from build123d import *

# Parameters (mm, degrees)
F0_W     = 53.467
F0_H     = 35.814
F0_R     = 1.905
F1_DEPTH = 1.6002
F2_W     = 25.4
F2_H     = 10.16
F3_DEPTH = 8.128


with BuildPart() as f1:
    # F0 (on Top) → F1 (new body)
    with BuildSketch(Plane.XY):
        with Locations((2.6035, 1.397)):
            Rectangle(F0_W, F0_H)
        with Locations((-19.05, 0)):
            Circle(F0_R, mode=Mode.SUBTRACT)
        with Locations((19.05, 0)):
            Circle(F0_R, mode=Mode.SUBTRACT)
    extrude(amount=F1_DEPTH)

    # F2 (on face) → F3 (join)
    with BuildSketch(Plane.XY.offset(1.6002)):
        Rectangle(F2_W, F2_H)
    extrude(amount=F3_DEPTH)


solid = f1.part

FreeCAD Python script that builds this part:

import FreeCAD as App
import Part
import Sketcher
Q = App.Units.Quantity


def add_polygon(sketch, points):
    """Adds a closed chain of lines whose ends are joined by coincident constraints."""
    first, n = sketch.GeometryCount, len(points)
    for a, b in zip(points, points[1:] + points[:1]):
        sketch.addGeometry(Part.LineSegment(App.Vector(*a, 0), App.Vector(*b, 0)), False)
    for i in range(n):
        sketch.addConstraint(Sketcher.Constraint("Coincident", first + i, 2, first + (i + 1) % n, 1))

doc = App.newDocument("Part")
body = doc.addObject("PartDesign::Body", "Body")

sketch1 = body.newObject("Sketcher::SketchObject", "Sketch")
sketch1.AttachmentSupport = (doc.getObject("XY_Plane"), [""])
sketch1.MapMode = "FlatFace"
add_polygon(sketch1, [(-24.1, 19.3), (-24.1, -16.5), (29.3, -16.5), (29.3, 19.3)])
sketch1.addGeometry(Part.Circle(App.Vector(-19.1, 0, 0), App.Vector(0, 0, 1), 1.9), False)
sketch1.addGeometry(Part.Circle(App.Vector(19.1, 0, 0), App.Vector(0, 0, 1), 1.9), False)
sketch1.addConstraint([
    Sketcher.Constraint("Vertical", 0),
    Sketcher.Constraint("Horizontal", 1),
    Sketcher.Constraint("Vertical", 2),
    Sketcher.Constraint("Horizontal", 3),
    Sketcher.Constraint("Equal", 4, 5),
    Sketcher.Constraint("Symmetric", 4, 3, 5, 3, -1, 1),
    Sketcher.Constraint("PointOnObject", 4, 3, -1),
    Sketcher.Constraint("Diameter", 4, Q("0.15 in")),
    Sketcher.Constraint("DistanceY", 0, 2, 0, 1, Q("1.41 in")),
    Sketcher.Constraint("DistanceX", 4, 3, 5, 3, Q("1.5 in")),
    Sketcher.Constraint("DistanceX", 0, 2, 4, 3, Q("0.2 in")),
    Sketcher.Constraint("DistanceX", 1, 1, 1, 2, Q("2.105 in")),
    Sketcher.Constraint("DistanceY", 0, 2, -1, 1, Q("0.65 in")),
])
pad1 = body.newObject("PartDesign::Pad", "Pad")
pad1.Profile = sketch1
pad1.Length = Q("0.063 in")

sketch2 = body.newObject("Sketcher::SketchObject", "Sketch001")
sketch2.AttachmentSupport = (doc.getObject("XY_Plane"), [""])
sketch2.MapMode = "FlatFace"
sketch2.AttachmentOffset = App.Placement(App.Vector(0, 0, 0.063 * 25.4), App.Rotation())
add_polygon(sketch2, [(-13, 5), (-13, -5), (13, -5), (13, 5)])
sketch2.addConstraint([
    Sketcher.Constraint("Vertical", 0),
    Sketcher.Constraint("Horizontal", 1),
    Sketcher.Constraint("Vertical", 2),
    Sketcher.Constraint("Horizontal", 3),
    Sketcher.Constraint("Symmetric", 0, 2, 2, 2, -1, 1),
    Sketcher.Constraint("DistanceX", 1, 1, 1, 2, Q("1 in")),
    Sketcher.Constraint("DistanceY", 0, 2, 0, 1, Q("0.4 in")),
])
pad2 = body.newObject("PartDesign::Pad", "Pad001")
pad2.Profile = sketch2
pad2.Length = Q("0.32 in")

doc.recompute()
